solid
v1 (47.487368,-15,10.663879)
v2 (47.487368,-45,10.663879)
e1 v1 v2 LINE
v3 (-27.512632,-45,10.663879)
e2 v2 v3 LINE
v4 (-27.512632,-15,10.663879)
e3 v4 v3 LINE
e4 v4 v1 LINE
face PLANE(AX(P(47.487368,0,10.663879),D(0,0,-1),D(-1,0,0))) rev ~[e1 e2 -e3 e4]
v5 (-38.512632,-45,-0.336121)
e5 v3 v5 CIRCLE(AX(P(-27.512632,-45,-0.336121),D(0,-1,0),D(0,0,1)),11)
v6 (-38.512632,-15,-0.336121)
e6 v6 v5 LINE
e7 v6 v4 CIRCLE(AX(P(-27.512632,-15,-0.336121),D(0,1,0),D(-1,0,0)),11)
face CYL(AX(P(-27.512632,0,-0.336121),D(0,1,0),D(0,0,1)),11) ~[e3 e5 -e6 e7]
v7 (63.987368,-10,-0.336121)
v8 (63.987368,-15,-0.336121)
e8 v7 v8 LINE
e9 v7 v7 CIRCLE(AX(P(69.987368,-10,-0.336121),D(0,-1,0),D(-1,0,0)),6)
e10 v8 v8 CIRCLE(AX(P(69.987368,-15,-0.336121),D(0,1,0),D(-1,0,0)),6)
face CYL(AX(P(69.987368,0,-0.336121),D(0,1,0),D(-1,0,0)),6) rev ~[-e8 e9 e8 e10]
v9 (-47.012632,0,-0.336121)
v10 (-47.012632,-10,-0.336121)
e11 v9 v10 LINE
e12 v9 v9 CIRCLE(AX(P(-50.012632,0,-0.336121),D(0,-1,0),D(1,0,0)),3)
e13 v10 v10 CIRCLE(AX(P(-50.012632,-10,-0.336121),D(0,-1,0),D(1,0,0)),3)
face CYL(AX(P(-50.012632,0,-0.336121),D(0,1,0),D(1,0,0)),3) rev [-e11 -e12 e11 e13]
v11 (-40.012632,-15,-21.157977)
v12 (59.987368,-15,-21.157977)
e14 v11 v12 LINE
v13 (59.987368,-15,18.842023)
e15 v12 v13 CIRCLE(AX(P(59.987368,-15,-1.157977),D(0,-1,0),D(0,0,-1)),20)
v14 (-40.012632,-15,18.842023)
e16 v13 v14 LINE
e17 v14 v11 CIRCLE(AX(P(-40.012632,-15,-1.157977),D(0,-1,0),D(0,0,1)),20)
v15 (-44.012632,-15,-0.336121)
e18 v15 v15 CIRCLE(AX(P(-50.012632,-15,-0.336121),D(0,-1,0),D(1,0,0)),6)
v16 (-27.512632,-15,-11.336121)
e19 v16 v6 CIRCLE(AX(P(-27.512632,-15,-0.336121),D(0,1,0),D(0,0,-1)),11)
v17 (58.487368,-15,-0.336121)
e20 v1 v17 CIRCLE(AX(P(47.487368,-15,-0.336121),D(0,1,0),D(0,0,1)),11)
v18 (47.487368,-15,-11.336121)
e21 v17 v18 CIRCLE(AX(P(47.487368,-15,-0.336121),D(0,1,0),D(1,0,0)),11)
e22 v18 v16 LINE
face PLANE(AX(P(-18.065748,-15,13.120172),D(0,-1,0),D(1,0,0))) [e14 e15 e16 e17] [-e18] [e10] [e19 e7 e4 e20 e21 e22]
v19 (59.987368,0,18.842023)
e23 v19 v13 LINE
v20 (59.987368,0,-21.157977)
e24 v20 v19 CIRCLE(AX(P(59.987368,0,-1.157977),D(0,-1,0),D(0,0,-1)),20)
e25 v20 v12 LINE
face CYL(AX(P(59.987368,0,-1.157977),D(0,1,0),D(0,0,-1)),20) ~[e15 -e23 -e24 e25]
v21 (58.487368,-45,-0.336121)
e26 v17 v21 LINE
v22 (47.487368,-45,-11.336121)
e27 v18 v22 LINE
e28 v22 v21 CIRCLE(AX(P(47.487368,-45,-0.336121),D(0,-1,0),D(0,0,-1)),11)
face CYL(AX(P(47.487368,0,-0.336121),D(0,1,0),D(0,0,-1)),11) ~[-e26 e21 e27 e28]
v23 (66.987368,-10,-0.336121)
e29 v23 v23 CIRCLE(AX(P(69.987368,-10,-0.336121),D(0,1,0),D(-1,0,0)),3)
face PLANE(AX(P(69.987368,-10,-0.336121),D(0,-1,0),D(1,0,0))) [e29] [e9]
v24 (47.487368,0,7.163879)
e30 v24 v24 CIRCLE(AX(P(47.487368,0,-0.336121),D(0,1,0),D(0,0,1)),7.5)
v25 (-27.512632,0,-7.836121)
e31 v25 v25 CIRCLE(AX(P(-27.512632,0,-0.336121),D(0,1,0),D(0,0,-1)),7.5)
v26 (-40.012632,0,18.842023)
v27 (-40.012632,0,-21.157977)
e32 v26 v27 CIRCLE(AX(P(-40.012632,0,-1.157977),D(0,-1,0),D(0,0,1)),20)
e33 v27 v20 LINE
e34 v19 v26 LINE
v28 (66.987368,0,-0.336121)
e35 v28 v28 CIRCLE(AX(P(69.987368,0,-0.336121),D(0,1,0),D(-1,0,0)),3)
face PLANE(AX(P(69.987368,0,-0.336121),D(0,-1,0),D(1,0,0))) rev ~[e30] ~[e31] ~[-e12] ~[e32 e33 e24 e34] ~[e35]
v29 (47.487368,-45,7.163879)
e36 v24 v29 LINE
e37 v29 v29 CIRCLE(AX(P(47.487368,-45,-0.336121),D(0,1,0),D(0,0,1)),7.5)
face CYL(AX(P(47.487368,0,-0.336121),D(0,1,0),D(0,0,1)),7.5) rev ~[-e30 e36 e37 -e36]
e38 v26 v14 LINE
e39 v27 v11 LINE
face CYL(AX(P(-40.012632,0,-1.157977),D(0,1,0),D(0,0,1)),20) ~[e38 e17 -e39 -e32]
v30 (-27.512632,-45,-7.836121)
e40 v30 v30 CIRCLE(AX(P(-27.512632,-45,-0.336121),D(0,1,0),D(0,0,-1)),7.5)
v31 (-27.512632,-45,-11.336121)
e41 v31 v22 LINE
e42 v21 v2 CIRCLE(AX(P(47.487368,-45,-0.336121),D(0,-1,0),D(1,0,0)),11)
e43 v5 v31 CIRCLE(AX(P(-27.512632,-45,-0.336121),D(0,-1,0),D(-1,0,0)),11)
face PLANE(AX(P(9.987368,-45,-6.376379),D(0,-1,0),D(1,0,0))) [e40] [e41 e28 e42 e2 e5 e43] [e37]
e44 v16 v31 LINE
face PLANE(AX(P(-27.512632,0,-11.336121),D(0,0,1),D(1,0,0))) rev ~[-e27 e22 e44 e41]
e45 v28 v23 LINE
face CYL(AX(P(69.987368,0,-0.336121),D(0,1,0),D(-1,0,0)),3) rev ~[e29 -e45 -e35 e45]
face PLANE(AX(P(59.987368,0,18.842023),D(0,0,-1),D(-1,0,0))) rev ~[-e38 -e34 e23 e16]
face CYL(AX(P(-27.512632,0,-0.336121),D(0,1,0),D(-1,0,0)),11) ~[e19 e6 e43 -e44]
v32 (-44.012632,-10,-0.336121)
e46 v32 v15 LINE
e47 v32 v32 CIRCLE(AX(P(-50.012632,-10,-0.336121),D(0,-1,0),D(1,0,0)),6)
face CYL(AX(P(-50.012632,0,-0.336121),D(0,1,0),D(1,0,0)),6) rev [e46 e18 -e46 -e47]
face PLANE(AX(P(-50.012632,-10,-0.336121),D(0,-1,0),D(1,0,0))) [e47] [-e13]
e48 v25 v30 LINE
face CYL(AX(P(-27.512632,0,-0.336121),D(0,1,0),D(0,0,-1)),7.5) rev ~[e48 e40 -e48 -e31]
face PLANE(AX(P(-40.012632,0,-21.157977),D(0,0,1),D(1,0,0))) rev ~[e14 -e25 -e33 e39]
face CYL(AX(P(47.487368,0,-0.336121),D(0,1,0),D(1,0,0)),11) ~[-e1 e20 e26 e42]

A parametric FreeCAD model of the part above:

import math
import FreeCAD as App
import Part
import Sketcher

V = App.Vector
Q = App.Units.Quantity

doc = App.newDocument("Part")
params = doc.addObject("Spreadsheet::Sheet", "Params")
for row, (alias, value) in enumerate([
    ("sketch1_diameter", "12 mm"),
    ("sketch1_radius", "20 mm"),
    ("sketch1_radius2", "11 mm"),
    ("sketch1_width", "100 mm"),
    ("sketch1_width2", "75 mm"),
    ("pad1_length", "15 mm"),
    ("sketch2_diameter", "15 mm"),
    ("sketch2_radius", "11 mm"),
    ("sketch2_width", "75 mm"),
    ("pad2_length", "45 mm"),
    ("sketch3_diameter", "12 mm"),
    ("sketch3_diameter2", "6 mm"),
    ("pad3_length", "10 mm"),
], start=1):
    params.set(f"A{row}", alias)
    params.set(f"B{row}", "=" + value)
    params.setAlias(f"B{row}", alias)

body = doc.addObject("PartDesign::Body", "Body")

# Sketch on XZ plane
sketch1 = body.newObject("Sketcher::SketchObject", "Sketch")
sketch1.AttachmentSupport = (doc.getObject("XZ_Plane"), [""])
sketch1.MapMode = "FlatFace"
sketch1.addGeometry(Part.LineSegment(V(59.987368, 18.842023, 0), V(-40.012632, 18.842023, 0)), False)
sketch1.addGeometry(Part.ArcOfCircle(Part.Circle(V(-40.012632, -1.157977, 0), V(0, 0, 1), 20), math.radians(90), math.radians(270)), False)
sketch1.addGeometry(Part.LineSegment(V(-40.012632, -21.157977, 0), V(59.987368, -21.157977, 0)), False)
sketch1.addGeometry(Part.ArcOfCircle(Part.Circle(V(59.987368, -1.157977, 0), V(0, 0, 1), 20), math.radians(-90), math.radians(90)), False)
sketch1.addGeometry(Part.Circle(V(-50.012632, -0.336121, 0), V(0, 0, 1), 6), False)
sketch1.addGeometry(Part.ArcOfCircle(Part.Circle(V(-27.512632, -0.336121, 0), V(0, 0, 1), 11), math.radians(90), math.radians(180)), False)
sketch1.addGeometry(Part.LineSegment(V(-27.512632, 10.663879, 0), V(47.487368, 10.663879, 0)), False)
sketch1.addGeometry(Part.ArcOfCircle(Part.Circle(V(47.487368, -0.336121, 0), V(0, 0, 1), 11), math.radians(0), math.radians(90)), False)
sketch1.addGeometry(Part.ArcOfCircle(Part.Circle(V(47.487368, -0.336121, 0), V(0, 0, 1), 11), math.radians(-90), math.radians(0)), False)
sketch1.addGeometry(Part.LineSegment(V(47.487368, -11.336121, 0), V(-27.512632, -11.336121, 0)), False)
sketch1.addGeometry(Part.ArcOfCircle(Part.Circle(V(-27.512632, -0.336121, 0), V(0, 0, 1), 11), math.radians(180), math.radians(270)), False)
sketch1.addGeometry(Part.Circle(V(69.987368, -0.336121, 0), V(0, 0, 1), 6), False)
sketch1.addConstraint(Sketcher.Constraint("Tangent", 0, 2, 1, 1))
sketch1.addConstraint(Sketcher.Constraint("Tangent", 1, 2, 2, 1))
sketch1.addConstraint(Sketcher.Constraint("Tangent", 2, 2, 3, 1))
sketch1.addConstraint(Sketcher.Constraint("Tangent", 3, 2, 0, 1))
sketch1.addConstraint(Sketcher.Constraint("Tangent", 5, 1, 6, 1))
sketch1.addConstraint(Sketcher.Constraint("Tangent", 6, 2, 7, 2))
sketch1.addConstraint(Sketcher.Constraint("Tangent", 7, 1, 8, 2))
sketch1.addConstraint(Sketcher.Constraint("Tangent", 8, 1, 9, 1))
sketch1.addConstraint(Sketcher.Constraint("Tangent", 9, 2, 10, 2))
sketch1.addConstraint(Sketcher.Constraint("Tangent", 10, 1, 5, 2))
sketch1.addConstraint(Sketcher.Constraint("Horizontal", 0))
sketch1.addConstraint(Sketcher.Constraint("Horizontal", 2))
sketch1.addConstraint(Sketcher.Constraint("Horizontal", 6))
sketch1.addConstraint(Sketcher.Constraint("Horizontal", 9))
sketch1.addConstraint(Sketcher.Constraint("Equal", 5, 7))
sketch1.addConstraint(Sketcher.Constraint("Equal", 7, 8))
sketch1.addConstraint(Sketcher.Constraint("Equal", 4, 11))
sketch1.addConstraint(Sketcher.Constraint("Horizontal", 4, 3, 5, 3))
sketch1.addConstraint(Sketcher.Constraint("Horizontal", 10, 3, 11, 3))
sketch1.addConstraint(Sketcher.Constraint("Horizontal", 11, 3, 7, 1))
sketch1.addConstraint(Sketcher.Constraint("Horizontal", 7, 1, 10, 1))
sketch1.addConstraint(Sketcher.Constraint("Diameter", 4, Q("12 mm")))
sketch1.addConstraint(Sketcher.Constraint("Radius", 1, Q("20 mm")))
sketch1.addConstraint(Sketcher.Constraint("Radius", 5, Q("11 mm")))
sketch1.addConstraint(Sketcher.Constraint("DistanceX", 0, 2, 0, 1, Q("100 mm")))
sketch1.addConstraint(Sketcher.Constraint("DistanceX", 6, 1, 6, 2, Q("75 mm")))
sketch1.addConstraint(Sketcher.Constraint("DistanceX", 4, 3, 1, 3, Q("10 mm")))
sketch1.addConstraint(Sketcher.Constraint("DistanceX", 3, 3, 11, 3, Q("10 mm")))
sketch1.addConstraint(Sketcher.Constraint("DistanceX", 1, 3, 5, 3, Q("12.5 mm")))
sketch1.addConstraint(Sketcher.Constraint("DistanceX", 1, 3, -1, 1, Q("40.012632 mm")))
sketch1.addConstraint(Sketcher.Constraint("DistanceY", 4, 3, -1, 1, Q("0.336121 mm")))
sketch1.addConstraint(Sketcher.Constraint("DistanceY", 1, 3, -1, 1, Q("1.157977 mm")))
sketch1.setExpression("Constraints[21]", "Params.sketch1_diameter")
sketch1.setExpression("Constraints[22]", "Params.sketch1_radius")
sketch1.setExpression("Constraints[23]", "Params.sketch1_radius2")
sketch1.setExpression("Constraints[24]", "Params.sketch1_width")
sketch1.setExpression("Constraints[25]", "Params.sketch1_width2")
pad1 = body.newObject("PartDesign::Pad", "Pad")
pad1.Profile = sketch1
pad1.setExpression("Length", "Params.pad1_length")

# Sketch on XZ plane
sketch2 = body.newObject("Sketcher::SketchObject", "Sketch001")
sketch2.AttachmentSupport = (doc.getObject("XZ_Plane"), [""])
sketch2.MapMode = "FlatFace"
sketch2.addGeometry(Part.LineSegment(V(-27.512632, -11.336121, 0), V(47.487368, -11.336121, 0)), False)
sketch2.addGeometry(Part.ArcOfCircle(Part.Circle(V(47.487368, -0.336121, 0), V(0, 0, 1), 11), math.radians(-90), math.radians(0)), False)
sketch2.addGeometry(Part.ArcOfCircle(Part.Circle(V(47.487368, -0.336121, 0), V(0, 0, 1), 11), math.radians(0), math.radians(90)), False)
sketch2.addGeometry(Part.LineSegment(V(47.487368, 10.663879, 0), V(-27.512632, 10.663879, 0)), False)
sketch2.addGeometry(Part.ArcOfCircle(Part.Circle(V(-27.512632, -0.336121, 0), V(0, 0, 1), 11), math.radians(90), math.radians(180)), False)
sketch2.addGeometry(Part.ArcOfCircle(Part.Circle(V(-27.512632, -0.336121, 0), V(0, 0, 1), 11), math.radians(180), math.radians(270)), False)
sketch2.addGeometry(Part.Circle(V(47.487368, -0.336121, 0), V(0, 0, 1), 7.5), False)
sketch2.addGeometry(Part.Circle(V(-27.512632, -0.336121, 0), V(0, 0, 1), 7.5), False)
sketch2.addConstraint(Sketcher.Constraint("Tangent", 0, 2, 1, 1))
sketch2.addConstraint(Sketcher.Constraint("Tangent", 1, 2, 2, 1))
sketch2.addConstraint(Sketcher.Constraint("Tangent", 2, 2, 3, 1))
sketch2.addConstraint(Sketcher.Constraint("Tangent", 3, 2, 4, 1))
sketch2.addConstraint(Sketcher.Constraint("Tangent", 4, 2, 5, 1))
sketch2.addConstraint(Sketcher.Constraint("Tangent", 5, 2, 0, 1))
sketch2.addConstraint(Sketcher.Constraint("Horizontal", 0))
sketch2.addConstraint(Sketcher.Constraint("Horizontal", 3))
sketch2.addConstraint(Sketcher.Constraint("Coincident", 6, 3, 1, 3))
sketch2.addConstraint(Sketcher.Constraint("Coincident", 7, 3, 4, 3))
sketch2.addConstraint(Sketcher.Constraint("Equal", 1, 2))
sketch2.addConstraint(Sketcher.Constraint("Equal", 2, 4))
sketch2.addConstraint(Sketcher.Constraint("Equal", 6, 7))
sketch2.addConstraint(Sketcher.Constraint("Horizontal", 7, 3, 1, 2))
sketch2.addConstraint(Sketcher.Constraint("Horizontal", 1, 2, 4, 2))
sketch2.addConstraint(Sketcher.Constraint("Diameter", 6, Q("15 mm")))
sketch2.addConstraint(Sketcher.Constraint("Radius", 1, Q("11 mm")))
sketch2.addConstraint(Sketcher.Constraint("DistanceX", 0, 1, 0, 2, Q("75 mm")))
sketch2.addConstraint(Sketcher.Constraint("DistanceX", -1, 1, 1, 3, Q("47.487368 mm")))
sketch2.addConstraint(Sketcher.Constraint("DistanceY", 1, 3, -1, 1, Q("0.336121 mm")))
sketch2.setExpression("Constraints[15]", "Params.sketch2_diameter")
sketch2.setExpression("Constraints[16]", "Params.sketch2_radius")
sketch2.setExpression("Constraints[17]", "Params.sketch2_width")
pad2 = body.newObject("PartDesign::Pad", "Pad001")
pad2.Profile = sketch2
pad2.setExpression("Length", "Params.pad2_length")

# Sketch on XZ plane
sketch3 = body.newObject("Sketcher::SketchObject", "Sketch002")
sketch3.AttachmentSupport = (doc.getObject("XZ_Plane"), [""])
sketch3.MapMode = "FlatFace"
sketch3.addGeometry(Part.Circle(V(69.987368, -0.336121, 0), V(0, 0, 1), 6), False)
sketch3.addGeometry(Part.Circle(V(69.987368, -0.336121, 0), V(0, 0, 1), 3), False)
sketch3.addGeometry(Part.Circle(V(-50.012632, -0.336121, 0), V(0, 0, 1), 6), False)
sketch3.addGeometry(Part.Circle(V(-50.012632, -0.336121, 0), V(0, 0, 1), 3), False)
sketch3.addConstraint(Sketcher.Constraint("Coincident", 1, 3, 0, 3))
sketch3.addConstraint(Sketcher.Constraint("Coincident", 3, 3, 2, 3))
sketch3.addConstraint(Sketcher.Constraint("Equal", 0, 2))
sketch3.addConstraint(Sketcher.Constraint("Equal", 1, 3))
sketch3.addConstraint(Sketcher.Constraint("Horizontal", 1, 3, 2, 3))
sketch3.addConstraint(Sketcher.Constraint("Diameter", 0, Q("12 mm")))
sketch3.addConstraint(Sketcher.Constraint("Diameter", 1, Q("6 mm")))
sketch3.addConstraint(Sketcher.Constraint("DistanceX", 2, 3, 0, 3, Q("120 mm")))
sketch3.addConstraint(Sketcher.Constraint("DistanceX", -1, 1, 0, 3, Q("69.987368 mm")))
sketch3.addConstraint(Sketcher.Constraint("DistanceY", 0, 3, -1, 1, Q("0.336121 mm")))
sketch3.setExpression("Constraints[5]", "Params.sketch3_diameter")
sketch3.setExpression("Constraints[6]", "Params.sketch3_diameter2")
pad3 = body.newObject("PartDesign::Pad", "Pad002")
pad3.Profile = sketch3
pad3.setExpression("Length", "Params.pad3_length")

doc.recompute()
